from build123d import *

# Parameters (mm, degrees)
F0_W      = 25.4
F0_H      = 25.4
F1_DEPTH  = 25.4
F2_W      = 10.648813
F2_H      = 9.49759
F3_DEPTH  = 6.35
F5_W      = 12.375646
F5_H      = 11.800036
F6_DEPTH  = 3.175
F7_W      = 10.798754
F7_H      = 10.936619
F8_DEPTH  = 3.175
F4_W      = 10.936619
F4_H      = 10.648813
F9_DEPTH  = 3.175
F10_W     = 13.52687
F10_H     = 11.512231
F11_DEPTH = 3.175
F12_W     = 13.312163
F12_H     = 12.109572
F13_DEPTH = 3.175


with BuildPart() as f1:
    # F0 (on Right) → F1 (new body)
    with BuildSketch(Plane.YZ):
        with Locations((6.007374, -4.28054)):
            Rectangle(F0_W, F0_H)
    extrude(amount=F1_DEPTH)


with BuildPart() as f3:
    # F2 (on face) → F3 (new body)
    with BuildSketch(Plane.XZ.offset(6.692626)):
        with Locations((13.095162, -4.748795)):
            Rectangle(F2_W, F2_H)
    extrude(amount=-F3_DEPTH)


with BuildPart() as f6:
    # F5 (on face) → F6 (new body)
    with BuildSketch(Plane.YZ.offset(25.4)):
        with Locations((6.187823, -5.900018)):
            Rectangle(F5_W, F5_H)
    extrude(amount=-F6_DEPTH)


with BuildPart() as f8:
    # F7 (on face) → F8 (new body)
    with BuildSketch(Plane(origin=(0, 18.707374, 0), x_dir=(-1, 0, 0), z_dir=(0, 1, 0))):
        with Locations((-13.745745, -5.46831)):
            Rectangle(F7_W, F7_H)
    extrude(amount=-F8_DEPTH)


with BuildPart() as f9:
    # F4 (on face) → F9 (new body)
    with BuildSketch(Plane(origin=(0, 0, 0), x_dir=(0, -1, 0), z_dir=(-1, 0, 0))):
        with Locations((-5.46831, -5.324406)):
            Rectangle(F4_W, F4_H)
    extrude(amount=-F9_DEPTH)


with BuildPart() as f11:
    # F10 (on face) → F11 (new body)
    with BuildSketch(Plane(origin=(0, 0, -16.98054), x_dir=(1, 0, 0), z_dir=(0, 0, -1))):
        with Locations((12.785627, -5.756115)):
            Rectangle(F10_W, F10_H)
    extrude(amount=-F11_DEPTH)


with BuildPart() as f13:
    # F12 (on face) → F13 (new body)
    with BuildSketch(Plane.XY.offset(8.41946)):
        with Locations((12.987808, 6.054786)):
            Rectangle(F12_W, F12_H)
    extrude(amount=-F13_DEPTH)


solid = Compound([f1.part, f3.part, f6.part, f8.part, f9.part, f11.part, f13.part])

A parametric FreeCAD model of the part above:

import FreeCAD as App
import Part
import Sketcher
from FreeCAD import Vector
Q = App.Units.Quantity


def add_polygon(sketch, points):
    """Adds a closed chain of lines whose ends are joined by coincident constraints."""
    first, n = sketch.GeometryCount, len(points)
    for a, b in zip(points, points[1:] + points[:1]):
        sketch.addGeometry(Part.LineSegment(App.Vector(*a, 0), App.Vector(*b, 0)), False)
    for i in range(n):
        sketch.addConstraint(Sketcher.Constraint("Coincident", first + i, 2, first + (i + 1) % n, 1))

doc = App.newDocument("Part")
body = doc.addObject("PartDesign::Body", "Body")

# Sketch on YZ plane
sketch1 = body.newObject("Sketcher::SketchObject", "Sketch")
sketch1.AttachmentSupport = (doc.getObject("YZ_Plane"), [""])
sketch1.MapMode = "FlatFace"
add_polygon(sketch1, [(-6.692626, 8.41946), (-6.692626, -16.98054), (18.707374, -16.98054), (18.707374, 8.41946)])  # lines 0-3
sketch1.addConstraint([
    Sketcher.Constraint("Vertical", 0),
    Sketcher.Constraint("Horizontal", 1),
    Sketcher.Constraint("Vertical", 2),
    Sketcher.Constraint("Horizontal", 3),
    Sketcher.Constraint("Equal", 3, 0),
    Sketcher.Constraint("DistanceX", 1, 1, 1, 2, Q("1 in")),
    Sketcher.Constraint("DistanceY", 0, 2, -1, 1, Q("16.98054 mm")),
    Sketcher.Constraint("DistanceX", 0, 2, -1, 1, Q("6.692626 mm")),
])
pad1 = body.newObject("PartDesign::Pad", "Pad")
pad1.Profile = sketch1
pad1.Length = Q("1 in")
body2 = doc.addObject("PartDesign::Body", "Body001")

# Sketch on XZ plane
sketch2 = body2.newObject("Sketcher::SketchObject", "Sketch001")
sketch2.AttachmentSupport = (doc.getObject("XZ_Plane001"), [""])
sketch2.MapMode = "FlatFace"
sketch2.AttachmentOffset = App.Placement(Vector(0, 0, 6.692626), App.Rotation())
add_polygon(sketch2, [(7.770755, 0), (7.770755, -9.49759), (18.419569, -9.49759), (18.419569, 0)])  # lines 0-3
sketch2.addConstraint([
    Sketcher.Constraint("Vertical", 0),
    Sketcher.Constraint("Horizontal", 1),
    Sketcher.Constraint("Vertical", 2),
    Sketcher.Constraint("Horizontal", 3),
    Sketcher.Constraint("PointOnObject", 2, 2, -1),
    Sketcher.Constraint("DistanceY", 0, 2, 0, 1, Q("9.49759 mm")),
    Sketcher.Constraint("DistanceX", 1, 1, 1, 2, Q("10.648813 mm")),
    Sketcher.Constraint("DistanceX", -1, 1, 1, 2, Q("18.419569 mm")),
])
pad2 = body2.newObject("PartDesign::Pad", "Pad001")
pad2.Profile = sketch2
pad2.Length = Q("0.25 in")
pad2.Reversed = True
body3 = doc.addObject("PartDesign::Body", "Body002")

# Sketch on YZ plane
sketch3 = body3.newObject("Sketcher::SketchObject", "Sketch002")
sketch3.AttachmentSupport = (doc.getObject("YZ_Plane002"), [""])
sketch3.MapMode = "FlatFace"
sketch3.AttachmentOffset = App.Placement(Vector(0, 0, 1 * 25.4), App.Rotation())
add_polygon(sketch3, [(0, 0), (0, -11.800036), (12.375646, -11.800036), (12.375646, 0)])  # lines 0-3
sketch3.addConstraint([
    Sketcher.Constraint("Vertical", 0),
    Sketcher.Constraint("Horizontal", 1),
    Sketcher.Constraint("Vertical", 2),
    Sketcher.Constraint("Horizontal", 3),
    Sketcher.Constraint("Coincident", 3, 2, -1, 1),
    Sketcher.Constraint("DistanceX", 1, 1, 1, 2, Q("12.375646 mm")),
    Sketcher.Constraint("DistanceY", 0, 2, 0, 1, Q("11.800036 mm")),
])
pad3 = body3.newObject("PartDesign::Pad", "Pad002")
pad3.Profile = sketch3
pad3.Length = Q("0.125 in")
pad3.Reversed = True
body4 = doc.addObject("PartDesign::Body", "Body003")

# Sketch on XZ plane
sketch4 = body4.newObject("Sketcher::SketchObject", "Sketch003")
sketch4.AttachmentSupport = (doc.getObject("XZ_Plane003"), [""])
sketch4.MapMode = "FlatFace"
sketch4.AttachmentOffset = App.Placement(Vector(0, 0, -18.707374), App.Rotation())
add_polygon(sketch4, [(19.145122, 0), (19.145122, -10.93662), (8.346368, -10.93662), (8.346368, 0)])  # lines 0-3
sketch4.addConstraint([
    Sketcher.Constraint("Vertical", 0),
    Sketcher.Constraint("Horizontal", 1),
    Sketcher.Constraint("Vertical", 2),
    Sketcher.Constraint("Horizontal", 3),
    Sketcher.Constraint("PointOnObject", 2, 2, -1),
    Sketcher.Constraint("DistanceY", 0, 2, 0, 1, Q("10.936619 mm")),
    Sketcher.Constraint("DistanceX", 1, 2, 1, 1, Q("10.798754 mm")),
    Sketcher.Constraint("DistanceX", -1, 1, 0, 2, Q("19.145122 mm")),
])
pad4 = body4.newObject("PartDesign::Pad", "Pad003")
pad4.Profile = sketch4
pad4.Length = Q("0.125 in")
body5 = doc.addObject("PartDesign::Body", "Body004")

# Sketch on YZ plane
sketch5 = body5.newObject("Sketcher::SketchObject", "Sketch004")
sketch5.AttachmentSupport = (doc.getObject("YZ_Plane004"), [""])
sketch5.MapMode = "FlatFace"
add_polygon(sketch5, [(10.93662, 0), (10.93662, -10.648813), (0, -10.648813), (0, 0)])  # lines 0-3
sketch5.addConstraint([
    Sketcher.Constraint("Vertical", 0),
    Sketcher.Constraint("Horizontal", 1),
    Sketcher.Constraint("Vertical", 2),
    Sketcher.Constraint("Horizontal", 3),
    Sketcher.Constraint("Coincident", 2, 2, -1, 1),
    Sketcher.Constraint("DistanceX", 1, 2, 1, 1, Q("10.936619 mm")),
    Sketcher.Constraint("DistanceY", 0, 2, 0, 1, Q("10.648813 mm")),
])
pad5 = body5.newObject("PartDesign::Pad", "Pad004")
pad5.Profile = sketch5
pad5.Length = Q("0.125 in")
body6 = doc.addObject("PartDesign::Body", "Body005")

# Sketch on XY plane
sketch6 = body6.newObject("Sketcher::SketchObject", "Sketch005")
sketch6.AttachmentSupport = (doc.getObject("XY_Plane005"), [""])
sketch6.MapMode = "FlatFace"
sketch6.AttachmentOffset = App.Placement(Vector(0, 0, -16.98054), App.Rotation())
add_polygon(sketch6, [(6.022192, 0), (6.022192, 11.51223), (19.549062, 11.51223), (19.549062, 0)])  # lines 0-3
sketch6.addConstraint([
    Sketcher.Constraint("Vertical", 0),
    Sketcher.Constraint("Horizontal", 1),
    Sketcher.Constraint("Vertical", 2),
    Sketcher.Constraint("Horizontal", 3),
    Sketcher.Constraint("PointOnObject", 2, 2, -1),
    Sketcher.Constraint("DistanceX", 1, 1, 1, 2, Q("13.52687 mm")),
    Sketcher.Constraint("DistanceY", 0, 1, 0, 2, Q("11.512231 mm")),
    Sketcher.Constraint("DistanceX", -1, 1, 1, 2, Q("19.549062 mm")),
])
pad6 = body6.newObject("PartDesign::Pad", "Pad005")
pad6.Profile = sketch6
pad6.Length = Q("0.125 in")
body7 = doc.addObject("PartDesign::Body", "Body006")

# Sketch on XY plane
sketch7 = body7.newObject("Sketcher::SketchObject", "Sketch006")
sketch7.AttachmentSupport = (doc.getObject("XY_Plane006"), [""])
sketch7.MapMode = "FlatFace"
sketch7.AttachmentOffset = App.Placement(Vector(0, 0, 8.41946), App.Rotation())
add_polygon(sketch7, [(6.331727, 12.109572), (6.331727, 0), (19.64389, 0), (19.64389, 12.109572)])  # lines 0-3
sketch7.addConstraint([
    Sketcher.Constraint("Vertical", 0),
    Sketcher.Constraint("Horizontal", 1),
    Sketcher.Constraint("Vertical", 2),
    Sketcher.Constraint("Horizontal", 3),
    Sketcher.Constraint("PointOnObject", 0, 2, -1),
    Sketcher.Constraint("DistanceX", 1, 1, 1, 2, Q("13.312163 mm")),
    Sketcher.Constraint("DistanceY", 0, 2, 0, 1, Q("12.109572 mm")),
    Sketcher.Constraint("DistanceX", -1, 1, 1, 2, Q("19.64389 mm")),
])
pad7 = body7.newObject("PartDesign::Pad", "Pad006")
pad7.Profile = sketch7
pad7.Length = Q("0.125 in")
pad7.Reversed = True

doc.recompute()
